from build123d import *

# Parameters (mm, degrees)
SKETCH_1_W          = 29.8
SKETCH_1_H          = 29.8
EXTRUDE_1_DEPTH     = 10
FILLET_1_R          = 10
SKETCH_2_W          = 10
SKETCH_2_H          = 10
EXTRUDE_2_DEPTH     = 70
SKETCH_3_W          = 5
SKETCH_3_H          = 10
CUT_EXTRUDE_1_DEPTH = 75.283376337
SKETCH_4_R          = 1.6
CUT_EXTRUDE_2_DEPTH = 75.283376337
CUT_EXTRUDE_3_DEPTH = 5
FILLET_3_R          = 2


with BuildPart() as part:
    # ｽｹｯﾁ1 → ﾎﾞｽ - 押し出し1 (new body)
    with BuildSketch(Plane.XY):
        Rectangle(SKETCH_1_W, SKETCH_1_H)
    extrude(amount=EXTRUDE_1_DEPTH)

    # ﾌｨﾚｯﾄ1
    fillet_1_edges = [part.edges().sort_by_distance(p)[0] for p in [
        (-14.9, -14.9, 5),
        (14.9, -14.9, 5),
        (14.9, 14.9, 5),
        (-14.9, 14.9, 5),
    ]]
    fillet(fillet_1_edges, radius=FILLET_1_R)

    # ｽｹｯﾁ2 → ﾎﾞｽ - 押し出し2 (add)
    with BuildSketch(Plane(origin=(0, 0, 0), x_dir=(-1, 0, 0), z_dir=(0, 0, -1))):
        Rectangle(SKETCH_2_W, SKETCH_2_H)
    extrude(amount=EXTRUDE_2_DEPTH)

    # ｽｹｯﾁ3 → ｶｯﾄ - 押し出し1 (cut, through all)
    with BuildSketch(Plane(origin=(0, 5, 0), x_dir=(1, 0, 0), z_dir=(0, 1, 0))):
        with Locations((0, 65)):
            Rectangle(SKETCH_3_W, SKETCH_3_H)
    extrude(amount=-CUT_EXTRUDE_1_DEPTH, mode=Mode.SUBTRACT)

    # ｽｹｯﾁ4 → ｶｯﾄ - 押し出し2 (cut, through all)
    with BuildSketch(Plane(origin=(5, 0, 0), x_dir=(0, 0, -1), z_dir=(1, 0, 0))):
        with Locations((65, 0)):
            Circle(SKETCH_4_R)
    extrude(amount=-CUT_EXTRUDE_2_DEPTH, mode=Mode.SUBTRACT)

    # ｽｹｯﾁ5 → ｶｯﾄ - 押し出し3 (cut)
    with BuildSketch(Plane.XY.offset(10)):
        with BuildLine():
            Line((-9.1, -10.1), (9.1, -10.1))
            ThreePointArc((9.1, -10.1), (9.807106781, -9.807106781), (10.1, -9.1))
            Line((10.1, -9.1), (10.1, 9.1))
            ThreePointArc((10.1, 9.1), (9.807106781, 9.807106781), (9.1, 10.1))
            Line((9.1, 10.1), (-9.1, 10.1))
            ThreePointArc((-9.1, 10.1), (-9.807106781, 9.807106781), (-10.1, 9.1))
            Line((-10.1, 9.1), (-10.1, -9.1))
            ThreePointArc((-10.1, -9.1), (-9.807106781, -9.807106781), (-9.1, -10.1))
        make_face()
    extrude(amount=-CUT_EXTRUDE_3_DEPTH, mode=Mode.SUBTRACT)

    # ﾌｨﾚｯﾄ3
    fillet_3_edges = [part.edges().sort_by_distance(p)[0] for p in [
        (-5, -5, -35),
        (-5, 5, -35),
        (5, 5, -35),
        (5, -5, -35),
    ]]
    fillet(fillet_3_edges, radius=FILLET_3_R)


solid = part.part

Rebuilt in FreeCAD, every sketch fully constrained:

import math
import FreeCAD as App
import Part
import Sketcher


def edges_at(feature, points):
    """Names of the edges that pass closest to the given points."""
    edges = feature.Shape.Edges
    near = lambda p: min(range(len(edges)), key=lambda i: edges[i].distToShape(Part.Vertex(*p))[0])
    return sorted({f"Edge{near(p) + 1}" for p in points})


def add_polygon(sketch, points):
    """Adds a closed chain of lines whose ends are joined by coincident constraints."""
    first, n = sketch.GeometryCount, len(points)
    for a, b in zip(points, points[1:] + points[:1]):
        sketch.addGeometry(Part.LineSegment(App.Vector(*a, 0), App.Vector(*b, 0)), False)
    for i in range(n):
        sketch.addConstraint(Sketcher.Constraint("Coincident", first + i, 2, first + (i + 1) % n, 1))

doc = App.newDocument("Part")
body = doc.addObject("PartDesign::Body", "Body")

sketch1 = body.newObject("Sketcher::SketchObject", "Sketch")
sketch1.AttachmentSupport = (doc.getObject("XY_Plane"), [""])
sketch1.MapMode = "FlatFace"
add_polygon(sketch1, [(-14.9, 14.9), (-14.9, -14.9), (14.9, -14.9), (14.9, 14.9)])
sketch1.addConstraint([
    Sketcher.Constraint("Vertical", 0),
    Sketcher.Constraint("Horizontal", 1),
    Sketcher.Constraint("Vertical", 2),
    Sketcher.Constraint("Horizontal", 3),
    Sketcher.Constraint("Symmetric", 0, 2, 2, 2, -1, 1),
    Sketcher.Constraint("Equal", 3, 0),
    Sketcher.Constraint("DistanceX", 1, 1, 1, 2, 29.8),
])
pad1 = body.newObject("PartDesign::Pad", "Pad")
pad1.Profile = sketch1
pad1.Length = 10
doc.recompute()

fillet = body.newObject("PartDesign::Fillet", "Fillet")
fillet.Base = (pad1, edges_at(pad1, [
    (-14.9, -14.9, 5),
    (14.9, -14.9, 5),
    (14.9, 14.9, 5),
    (-14.9, 14.9, 5),
]))
fillet.Radius = 10

sketch2 = body.newObject("Sketcher::SketchObject", "Sketch001")
sketch2.AttachmentSupport = (doc.getObject("XY_Plane"), [""])
sketch2.MapMode = "FlatFace"
add_polygon(sketch2, [(5, 5), (5, -5), (-5, -5), (-5, 5)])
sketch2.addConstraint([
    Sketcher.Constraint("Vertical", 0),
    Sketcher.Constraint("Horizontal", 1),
    Sketcher.Constraint("Vertical", 2),
    Sketcher.Constraint("Horizontal", 3),
    Sketcher.Constraint("Symmetric", 0, 2, 2, 2, -1, 1),
    Sketcher.Constraint("Equal", 3, 0),
    Sketcher.Constraint("DistanceX", 1, 2, 1, 1, 10.0),
])
pad2 = body.newObject("PartDesign::Pad", "Pad001")
pad2.Profile = sketch2
pad2.Length = 70
pad2.Reversed = True

sketch3 = body.newObject("Sketcher::SketchObject", "Sketch002")
sketch3.AttachmentSupport = (doc.getObject("XZ_Plane"), [""])
sketch3.MapMode = "FlatFace"
sketch3.AttachmentOffset = App.Placement(App.Vector(0, 0, -5), App.Rotation())
add_polygon(sketch3, [(-2.5, -70), (-2.5, -60), (2.5, -60), (2.5, -70)])
sketch3.addConstraint([
    Sketcher.Constraint("Vertical", 0),
    Sketcher.Constraint("Horizontal", 1),
    Sketcher.Constraint("Vertical", 2),
    Sketcher.Constraint("Horizontal", 3),
    Sketcher.Constraint("DistanceX", 1, 1, 1, 2, 5.0),
    Sketcher.Constraint("DistanceY", 0, 1, 0, 2, 10.0),
    Sketcher.Constraint("DistanceY", 0, 2, -1, 1, 60.0),
    Sketcher.Constraint("DistanceX", 0, 2, -1, 1, 2.5),
])
pocket1 = body.newObject("PartDesign::Pocket", "Pocket")
pocket1.Profile = sketch3
pocket1.Type = "ThroughAll"
pocket1.Reversed = True

sketch4 = body.newObject("Sketcher::SketchObject", "Sketch003")
sketch4.AttachmentSupport = (doc.getObject("YZ_Plane"), [""])
sketch4.MapMode = "FlatFace"
sketch4.AttachmentOffset = App.Placement(App.Vector(0, 0, 5), App.Rotation())
sketch4.addGeometry(Part.Circle(App.Vector(0, -65, 0), App.Vector(0, 0, 1), 1.6), False)
sketch4.addConstraint([
    Sketcher.Constraint("PointOnObject", 0, 3, -2),
    Sketcher.Constraint("Diameter", 0, 3.2),
    Sketcher.Constraint("DistanceY", 0, 3, -1, 1, 65.0),
])
pocket2 = body.newObject("PartDesign::Pocket", "Pocket001")
pocket2.Profile = sketch4
pocket2.Type = "ThroughAll"

sketch5 = body.newObject("Sketcher::SketchObject", "Sketch004")
sketch5.AttachmentSupport = (doc.getObject("XY_Plane"), [""])
sketch5.MapMode = "FlatFace"
sketch5.AttachmentOffset = App.Placement(App.Vector(0, 0, 10), App.Rotation())
sketch5.addGeometry([
    Part.LineSegment(App.Vector(-9.1, -10.1, 0), App.Vector(9.1, -10.1, 0)),
    Part.ArcOfCircle(Part.Circle(App.Vector(9.1, -9.1, 0), App.Vector(0, 0, 1), 1), math.radians(-90), math.radians(0)),
    Part.LineSegment(App.Vector(10.1, -9.1, 0), App.Vector(10.1, 9.1, 0)),
    Part.ArcOfCircle(Part.Circle(App.Vector(9.1, 9.1, 0), App.Vector(0, 0, 1), 1), math.radians(0), math.radians(90)),
    Part.LineSegment(App.Vector(9.1, 10.1, 0), App.Vector(-9.1, 10.1, 0)),
    Part.ArcOfCircle(Part.Circle(App.Vector(-9.1, 9.1, 0), App.Vector(0, 0, 1), 1), math.radians(90), math.radians(180)),
    Part.LineSegment(App.Vector(-10.1, 9.1, 0), App.Vector(-10.1, -9.1, 0)),
    Part.ArcOfCircle(Part.Circle(App.Vector(-9.1, -9.1, 0), App.Vector(0, 0, 1), 1), math.radians(-180), math.radians(-90)),
], False)
sketch5.addConstraint([
    Sketcher.Constraint("Tangent", 0, 2, 1, 1),
    Sketcher.Constraint("Tangent", 1, 2, 2, 1),
    Sketcher.Constraint("Tangent", 2, 2, 3, 1),
    Sketcher.Constraint("Tangent", 3, 2, 4, 1),
    Sketcher.Constraint("Tangent", 4, 2, 5, 1),
    Sketcher.Constraint("Tangent", 5, 2, 6, 1),
    Sketcher.Constraint("Tangent", 6, 2, 7, 1),
    Sketcher.Constraint("Tangent", 7, 2, 0, 1),
    Sketcher.Constraint("Horizontal", 0),
    Sketcher.Constraint("Vertical", 2),
    Sketcher.Constraint("Horizontal", 4),
    Sketcher.Constraint("Vertical", 6),
    Sketcher.Constraint("Equal", 1, 3),
    Sketcher.Constraint("Equal", 3, 5),
    Sketcher.Constraint("Equal", 5, 7),
    Sketcher.Constraint("Symmetric", 1, 3, 5, 3, -1, 1),
    Sketcher.Constraint("Equal", 4, 2),
    Sketcher.Constraint("Radius", 1, 1.0),
    Sketcher.Constraint("DistanceX", 0, 1, 0, 2, 18.2),
])
pocket3 = body.newObject("PartDesign::Pocket", "Pocket002")
pocket3.Profile = sketch5
pocket3.Length = 5
doc.recompute()

fillet2 = body.newObject("PartDesign::Fillet", "Fillet001")
fillet2.Base = (pocket3, edges_at(pocket3, [
    (-5, -5, -35),
    (-5, 5, -35),
    (5, 5, -35),
    (5, -5, -35),
]))
fillet2.Radius = 2

doc.recompute()
